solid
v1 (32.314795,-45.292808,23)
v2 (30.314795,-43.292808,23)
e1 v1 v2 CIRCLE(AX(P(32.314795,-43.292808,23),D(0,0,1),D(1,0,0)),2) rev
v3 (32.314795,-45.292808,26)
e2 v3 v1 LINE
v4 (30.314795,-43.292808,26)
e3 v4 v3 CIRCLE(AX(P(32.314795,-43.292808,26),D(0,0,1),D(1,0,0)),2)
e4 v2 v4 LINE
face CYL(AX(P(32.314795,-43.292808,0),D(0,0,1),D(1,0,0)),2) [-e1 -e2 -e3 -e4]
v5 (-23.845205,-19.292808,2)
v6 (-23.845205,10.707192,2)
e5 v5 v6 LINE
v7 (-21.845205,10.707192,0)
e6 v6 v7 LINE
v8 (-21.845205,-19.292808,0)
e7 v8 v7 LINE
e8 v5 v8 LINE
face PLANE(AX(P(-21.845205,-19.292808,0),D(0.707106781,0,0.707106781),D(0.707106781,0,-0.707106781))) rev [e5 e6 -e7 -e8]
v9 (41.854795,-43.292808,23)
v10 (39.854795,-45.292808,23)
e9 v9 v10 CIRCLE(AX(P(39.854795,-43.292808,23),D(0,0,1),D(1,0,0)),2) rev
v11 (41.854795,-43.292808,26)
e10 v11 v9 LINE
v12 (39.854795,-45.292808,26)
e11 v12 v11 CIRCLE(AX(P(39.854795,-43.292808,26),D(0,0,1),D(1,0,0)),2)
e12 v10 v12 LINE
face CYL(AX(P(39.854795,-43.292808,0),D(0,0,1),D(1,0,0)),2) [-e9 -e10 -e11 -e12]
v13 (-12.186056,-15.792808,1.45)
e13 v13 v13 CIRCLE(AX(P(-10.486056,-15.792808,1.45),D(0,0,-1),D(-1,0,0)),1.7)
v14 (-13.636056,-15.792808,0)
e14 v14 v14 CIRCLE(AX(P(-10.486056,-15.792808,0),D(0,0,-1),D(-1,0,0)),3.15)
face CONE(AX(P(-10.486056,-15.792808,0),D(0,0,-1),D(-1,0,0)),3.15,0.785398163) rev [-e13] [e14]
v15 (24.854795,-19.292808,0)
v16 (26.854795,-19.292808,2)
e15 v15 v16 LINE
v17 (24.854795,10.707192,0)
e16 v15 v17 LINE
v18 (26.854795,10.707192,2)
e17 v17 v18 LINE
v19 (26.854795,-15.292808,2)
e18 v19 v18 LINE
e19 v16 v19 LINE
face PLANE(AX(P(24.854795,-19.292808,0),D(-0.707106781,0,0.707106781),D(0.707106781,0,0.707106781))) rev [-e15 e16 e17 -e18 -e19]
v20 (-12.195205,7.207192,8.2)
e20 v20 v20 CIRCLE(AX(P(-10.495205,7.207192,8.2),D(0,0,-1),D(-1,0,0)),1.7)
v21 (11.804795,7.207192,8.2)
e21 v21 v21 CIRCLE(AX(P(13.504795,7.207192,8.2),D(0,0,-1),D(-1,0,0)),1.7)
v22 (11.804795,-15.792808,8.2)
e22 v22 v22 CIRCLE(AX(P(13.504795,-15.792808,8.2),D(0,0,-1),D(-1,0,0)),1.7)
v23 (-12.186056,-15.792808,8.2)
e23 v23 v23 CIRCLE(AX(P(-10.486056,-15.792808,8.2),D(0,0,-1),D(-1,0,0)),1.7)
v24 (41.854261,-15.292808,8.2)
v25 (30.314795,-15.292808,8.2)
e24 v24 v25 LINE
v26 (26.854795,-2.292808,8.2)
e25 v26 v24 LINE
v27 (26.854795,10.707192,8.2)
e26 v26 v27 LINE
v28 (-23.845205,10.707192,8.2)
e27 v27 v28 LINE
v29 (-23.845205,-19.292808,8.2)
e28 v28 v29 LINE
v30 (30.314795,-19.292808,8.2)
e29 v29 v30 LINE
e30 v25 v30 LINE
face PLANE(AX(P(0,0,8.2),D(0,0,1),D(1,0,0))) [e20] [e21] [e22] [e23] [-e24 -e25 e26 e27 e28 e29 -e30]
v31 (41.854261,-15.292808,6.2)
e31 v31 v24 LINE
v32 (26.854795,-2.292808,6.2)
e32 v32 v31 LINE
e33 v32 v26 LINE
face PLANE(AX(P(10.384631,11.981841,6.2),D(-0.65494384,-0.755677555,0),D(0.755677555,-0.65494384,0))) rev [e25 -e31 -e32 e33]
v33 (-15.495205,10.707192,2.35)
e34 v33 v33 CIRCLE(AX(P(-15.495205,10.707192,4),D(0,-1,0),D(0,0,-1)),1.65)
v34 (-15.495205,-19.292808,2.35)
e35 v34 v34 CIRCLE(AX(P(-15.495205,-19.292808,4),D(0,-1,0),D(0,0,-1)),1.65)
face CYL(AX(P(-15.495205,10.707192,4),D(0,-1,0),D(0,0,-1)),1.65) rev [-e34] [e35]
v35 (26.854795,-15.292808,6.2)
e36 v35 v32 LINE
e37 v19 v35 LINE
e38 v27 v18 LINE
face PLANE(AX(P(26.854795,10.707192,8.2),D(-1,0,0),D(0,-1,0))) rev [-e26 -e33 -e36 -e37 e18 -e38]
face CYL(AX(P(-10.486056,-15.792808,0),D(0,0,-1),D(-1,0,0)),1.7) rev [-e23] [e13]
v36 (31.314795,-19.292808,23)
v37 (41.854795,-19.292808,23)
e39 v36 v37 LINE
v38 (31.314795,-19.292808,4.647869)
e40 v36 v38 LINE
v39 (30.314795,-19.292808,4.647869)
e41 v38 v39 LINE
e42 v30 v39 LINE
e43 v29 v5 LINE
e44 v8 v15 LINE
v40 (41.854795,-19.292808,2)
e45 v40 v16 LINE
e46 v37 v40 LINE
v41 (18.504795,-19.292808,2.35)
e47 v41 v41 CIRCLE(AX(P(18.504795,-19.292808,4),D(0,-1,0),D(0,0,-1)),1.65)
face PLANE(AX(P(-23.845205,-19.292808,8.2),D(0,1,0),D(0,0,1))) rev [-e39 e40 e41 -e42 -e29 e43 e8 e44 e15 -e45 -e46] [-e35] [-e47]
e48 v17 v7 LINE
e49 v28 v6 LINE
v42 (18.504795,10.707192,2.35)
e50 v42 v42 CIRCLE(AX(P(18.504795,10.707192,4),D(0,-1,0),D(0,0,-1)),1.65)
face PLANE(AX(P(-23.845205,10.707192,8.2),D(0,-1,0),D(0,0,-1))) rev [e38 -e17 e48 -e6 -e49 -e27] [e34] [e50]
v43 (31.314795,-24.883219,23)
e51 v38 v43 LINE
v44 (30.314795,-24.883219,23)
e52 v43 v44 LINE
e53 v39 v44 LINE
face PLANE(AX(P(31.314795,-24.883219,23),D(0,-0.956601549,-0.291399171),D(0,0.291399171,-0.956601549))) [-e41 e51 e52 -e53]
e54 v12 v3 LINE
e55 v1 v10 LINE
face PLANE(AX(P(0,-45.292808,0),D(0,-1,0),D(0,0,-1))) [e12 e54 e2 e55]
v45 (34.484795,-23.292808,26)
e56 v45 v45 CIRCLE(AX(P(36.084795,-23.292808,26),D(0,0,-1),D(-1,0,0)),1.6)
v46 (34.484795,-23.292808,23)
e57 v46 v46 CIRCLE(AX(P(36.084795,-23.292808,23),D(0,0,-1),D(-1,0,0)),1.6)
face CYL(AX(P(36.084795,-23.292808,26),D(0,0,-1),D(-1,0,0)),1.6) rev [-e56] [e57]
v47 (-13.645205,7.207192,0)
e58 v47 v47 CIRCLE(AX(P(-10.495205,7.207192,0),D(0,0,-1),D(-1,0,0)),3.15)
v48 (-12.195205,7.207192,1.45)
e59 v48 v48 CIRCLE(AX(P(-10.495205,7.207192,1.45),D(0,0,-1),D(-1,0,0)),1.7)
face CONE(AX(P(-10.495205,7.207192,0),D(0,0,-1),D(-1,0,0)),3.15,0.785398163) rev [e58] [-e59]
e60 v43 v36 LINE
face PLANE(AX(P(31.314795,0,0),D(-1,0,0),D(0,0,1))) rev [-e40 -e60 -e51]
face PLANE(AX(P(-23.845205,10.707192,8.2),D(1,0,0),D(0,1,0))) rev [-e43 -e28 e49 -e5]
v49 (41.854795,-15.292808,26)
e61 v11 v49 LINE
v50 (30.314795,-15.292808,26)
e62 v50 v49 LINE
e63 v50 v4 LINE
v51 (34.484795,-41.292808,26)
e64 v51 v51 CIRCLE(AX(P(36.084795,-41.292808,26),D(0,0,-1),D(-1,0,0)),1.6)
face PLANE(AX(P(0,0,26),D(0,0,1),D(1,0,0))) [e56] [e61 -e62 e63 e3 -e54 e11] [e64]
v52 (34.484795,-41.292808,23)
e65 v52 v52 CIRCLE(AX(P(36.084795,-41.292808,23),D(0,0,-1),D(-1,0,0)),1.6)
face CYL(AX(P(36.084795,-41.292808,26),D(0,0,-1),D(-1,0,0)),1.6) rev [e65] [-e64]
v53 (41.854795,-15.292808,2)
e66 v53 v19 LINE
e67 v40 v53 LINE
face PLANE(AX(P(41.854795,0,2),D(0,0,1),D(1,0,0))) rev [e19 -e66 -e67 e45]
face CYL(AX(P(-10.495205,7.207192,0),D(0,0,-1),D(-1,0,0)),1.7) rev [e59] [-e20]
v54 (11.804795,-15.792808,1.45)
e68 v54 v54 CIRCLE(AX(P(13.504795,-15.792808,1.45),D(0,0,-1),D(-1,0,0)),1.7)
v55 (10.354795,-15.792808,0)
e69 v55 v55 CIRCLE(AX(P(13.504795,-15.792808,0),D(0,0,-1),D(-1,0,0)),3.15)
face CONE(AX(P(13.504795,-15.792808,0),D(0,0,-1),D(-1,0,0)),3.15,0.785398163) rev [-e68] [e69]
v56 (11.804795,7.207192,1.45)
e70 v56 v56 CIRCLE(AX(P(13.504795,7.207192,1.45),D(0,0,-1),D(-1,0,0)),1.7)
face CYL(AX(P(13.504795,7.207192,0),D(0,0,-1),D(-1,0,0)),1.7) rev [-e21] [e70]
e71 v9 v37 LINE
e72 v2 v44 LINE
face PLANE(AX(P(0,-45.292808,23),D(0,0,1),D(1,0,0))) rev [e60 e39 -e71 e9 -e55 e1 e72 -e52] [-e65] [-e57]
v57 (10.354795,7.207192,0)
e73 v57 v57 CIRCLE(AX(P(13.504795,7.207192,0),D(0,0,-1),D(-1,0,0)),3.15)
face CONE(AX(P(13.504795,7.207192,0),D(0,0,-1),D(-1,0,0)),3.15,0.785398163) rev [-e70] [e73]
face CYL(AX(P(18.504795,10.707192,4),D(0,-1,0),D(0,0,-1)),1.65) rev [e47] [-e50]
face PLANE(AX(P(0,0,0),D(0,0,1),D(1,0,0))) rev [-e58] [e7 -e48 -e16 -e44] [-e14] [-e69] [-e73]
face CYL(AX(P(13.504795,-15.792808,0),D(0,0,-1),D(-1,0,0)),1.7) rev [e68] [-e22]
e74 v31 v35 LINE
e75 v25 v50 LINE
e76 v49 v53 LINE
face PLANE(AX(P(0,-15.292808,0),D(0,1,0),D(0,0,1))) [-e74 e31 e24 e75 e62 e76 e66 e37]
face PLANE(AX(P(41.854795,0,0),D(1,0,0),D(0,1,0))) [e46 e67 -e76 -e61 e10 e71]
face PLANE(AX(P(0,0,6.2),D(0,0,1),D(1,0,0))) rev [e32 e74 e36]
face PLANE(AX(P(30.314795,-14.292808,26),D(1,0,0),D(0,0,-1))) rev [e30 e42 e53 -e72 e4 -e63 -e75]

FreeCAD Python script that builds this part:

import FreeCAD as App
import Part
import Sketcher
from FreeCAD import Vector
Q = App.Units.Quantity


def edges_at(feature, points):
    """Names of the edges that pass closest to the given points."""
    edges = feature.Shape.Edges
    near = lambda p: min(range(len(edges)), key=lambda i: edges[i].distToShape(Part.Vertex(*p))[0])
    return sorted({f"Edge{near(p) + 1}" for p in points})

doc = App.newDocument("Part")
params = doc.addObject("Spreadsheet::Sheet", "Params")
for row, (alias, value) in enumerate([
    ("sketch1_height", "30 mm"),
    ("sketch1_width", "50.7 mm"),
    ("pad1_length", "8.2 mm"),
    ("sketch2_width", "2 mm"),
    ("sketch3_diameter", "3.4 mm"),
    ("hole_diameter", "3.4 mm"),
    ("hole_csink_diameter", "6.3 mm"),
    ("sketch4_diameter", "3.3 mm"),
    ("sketch5_width", "5 mm"),
    ("sketch5_height", "6.2 mm"),
    ("pad2_length", "15 mm"),
    ("sketch6_height", "5 mm"),
    ("sketch6_width", "11.54 mm"),
    ("pad3_length", "17.8 mm"),
    ("sketch7_height", "3 mm"),
    ("sketch7_width", "11.54 mm"),
    ("pad4_length", "26 mm"),
    ("sketch8_diameter", "3.2 mm"),
    ("pad5_length", "1 mm"),
    ("fillet_radius", "2 mm"),
    ("sketch10_width", "15 mm"),
    ("sketch10_height", "24 mm"),
    ("sketch10_height2", "17.8 mm"),
    ("sketch10_width2", "3.46 mm"),
    ("pocket4_length", "1 mm"),
    ("sketch11_height", "13 mm"),
    ("pad6_length", "2 mm"),
], start=1):
    params.set(f"A{row}", alias)
    params.set(f"B{row}", "=" + value)
    params.setAlias(f"B{row}", alias)

body = doc.addObject("PartDesign::Body", "Body")

# Sketch on XY plane
sketch1 = body.newObject("Sketcher::SketchObject", "Sketch")
sketch1.AttachmentSupport = (doc.getObject("XY_Plane"), [""])
sketch1.MapMode = "FlatFace"
sketch1.addGeometry([
    Part.LineSegment(Vector(-24, 11, 0), Vector(-24, -19, 0)),
    Part.LineSegment(Vector(-24, -19, 0), Vector(27, -19, 0)),
    Part.LineSegment(Vector(27, -19, 0), Vector(27, 11, 0)),
    Part.LineSegment(Vector(27, 11, 0), Vector(-24, 11, 0)),
], False)
sketch1.addConstraint([
    Sketcher.Constraint("Coincident", 0, 2, 1, 1),
    Sketcher.Constraint("Coincident", 1, 2, 2, 1),
    Sketcher.Constraint("Coincident", 2, 2, 3, 1),
    Sketcher.Constraint("Coincident", 3, 2, 0, 1),
    Sketcher.Constraint("Vertical", 0),
    Sketcher.Constraint("Horizontal", 1),
    Sketcher.Constraint("Vertical", 2),
    Sketcher.Constraint("Horizontal", 3),
    Sketcher.Constraint("DistanceY", 0, 2, 0, 1, Q("30 mm")),
    Sketcher.Constraint("DistanceX", 1, 1, 1, 2, Q("50.7 mm")),
    Sketcher.Constraint("DistanceY", 0, 2, -1, 1, Q("19.292808 mm")),
    Sketcher.Constraint("DistanceX", 0, 2, -1, 1, Q("23.845205 mm")),
])
sketch1.setExpression("Constraints[8]", "Params.sketch1_height")
sketch1.setExpression("Constraints[9]", "Params.sketch1_width")
pad1 = body.newObject("PartDesign::Pad", "Pad")
pad1.Profile = sketch1
pad1.setExpression("Length", "Params.pad1_length")

# Sketch on XZ plane
sketch2 = body.newObject("Sketcher::SketchObject", "Sketch001")
sketch2.AttachmentSupport = (doc.getObject("XZ_Plane"), [""])
sketch2.MapMode = "FlatFace"
sketch2.AttachmentOffset = App.Placement(Vector(0, 0, -10.707192), App.Rotation())
sketch2.addGeometry([
    Part.LineSegment(Vector(-23.8, 2, 0), Vector(-21.8, 0, 0)),  # 0
    Part.LineSegment(Vector(-21.8, 0, 0), Vector(-23.8, 0, 0)),  # 1
    Part.LineSegment(Vector(-23.8, 0, 0), Vector(-23.8, 2, 0)),  # 2
    Part.LineSegment(Vector(24.9, 0, 0), Vector(26.9, 2, 0)),  # 3
    Part.LineSegment(Vector(26.9, 2, 0), Vector(26.9, 0, 0)),  # 4
    Part.LineSegment(Vector(26.9, 0, 0), Vector(24.9, 0, 0)),  # 5
], False)
sketch2.addConstraint([
    Sketcher.Constraint("Coincident", 0, 2, 1, 1),
    Sketcher.Constraint("Coincident", 1, 2, 2, 1),
    Sketcher.Constraint("Coincident", 2, 2, 0, 1),
    Sketcher.Constraint("Coincident", 3, 2, 4, 1),
    Sketcher.Constraint("Coincident", 4, 2, 5, 1),
    Sketcher.Constraint("Coincident", 5, 2, 3, 1),
    Sketcher.Constraint("Horizontal", 1),
    Sketcher.Constraint("Vertical", 2),
    Sketcher.Constraint("Vertical", 4),
    Sketcher.Constraint("Horizontal", 5),
    Sketcher.Constraint("PointOnObject", 0, 2, -1),
    Sketcher.Constraint("PointOnObject", 4, 2, -1),
    Sketcher.Constraint("Perpendicular", 0, 3),
    Sketcher.Constraint("Horizontal", 2, 2, 3, 2),
    Sketcher.Constraint("Equal", 1, 5),
    Sketcher.Constraint("DistanceX", 1, 2, 1, 1, Q("2 mm")),
    Sketcher.Constraint("DistanceX", 0, 2, 3, 2, Q("48.7 mm")),
    Sketcher.Constraint("DistanceX", 0, 2, -1, 1, Q("21.845205 mm")),
])
sketch2.setExpression("Constraints[15]", "Params.sketch2_width")
pocket1 = body.newObject("PartDesign::Pocket", "Pocket")
pocket1.Profile = sketch2
pocket1.Type = "ThroughAll"
pocket1.Reversed = True

# Sketch on XY plane
sketch3 = body.newObject("Sketcher::SketchObject", "Sketch002")
sketch3.AttachmentSupport = (doc.getObject("XY_Plane"), [""])
sketch3.MapMode = "FlatFace"
sketch3.addGeometry([
    Part.Circle(Vector(-10.5, -15.8, 0), Vector(0, 0, 1), 1.7),
    Part.Circle(Vector(13.5, -15.8, 0), Vector(0, 0, 1), 1.7),
    Part.Circle(Vector(13.5, 7.2, 0), Vector(0, 0, 1), 1.7),
    Part.Circle(Vector(-10.5, 7.2, 0), Vector(0, 0, 1), 1.7),
], False)
sketch3.addConstraint([
    Sketcher.Constraint("Equal", 0, 1),
    Sketcher.Constraint("Equal", 1, 2),
    Sketcher.Constraint("Equal", 2, 3),
    Sketcher.Constraint("Horizontal", 0, 3, 1, 3),
    Sketcher.Constraint("Horizontal", 2, 3, 3, 3),
    Sketcher.Constraint("Vertical", 1, 3, 2, 3),
    Sketcher.Constraint("Diameter", 0, Q("3.4 mm")),
    Sketcher.Constraint("DistanceY", 1, 3, 2, 3, Q("23 mm")),
    Sketcher.Constraint("DistanceX", 3, 3, 2, 3, Q("24 mm")),
    Sketcher.Constraint("DistanceY", 0, 3, -1, 1, Q("15.792808 mm")),
    Sketcher.Constraint("DistanceX", 0, 3, 1, 3, Q("23.99085 mm")),
    Sketcher.Constraint("DistanceX", 0, 3, -1, 1, Q("10.486056 mm")),
])
sketch3.setExpression("Constraints[6]", "Params.sketch3_diameter")
doc.recompute()
hole = body.newObject("PartDesign::Hole", "Hole")
hole.Profile = sketch3
hole.ThreadType = "None"
hole.setExpression("Diameter", "Params.hole_diameter")
hole.DepthType = "ThroughAll"
hole.HoleCutType = "Countersink"
hole.setExpression("HoleCutDiameter", "Params.hole_csink_diameter")
hole.HoleCutCountersinkAngle = 90
hole.Reversed = True

# Sketch on XZ plane
sketch4 = body.newObject("Sketcher::SketchObject", "Sketch003")
sketch4.AttachmentSupport = (doc.getObject("XZ_Plane"), [""])
sketch4.MapMode = "FlatFace"
sketch4.AttachmentOffset = App.Placement(Vector(0, 0, 19.292808), App.Rotation())
sketch4.addGeometry([
    Part.Circle(Vector(-15.5, 4, 0), Vector(0, 0, 1), 1.6),
    Part.Circle(Vector(18.5, 4, 0), Vector(0, 0, 1), 1.6),
], False)
sketch4.addConstraint([
    Sketcher.Constraint("Equal", 0, 1),
    Sketcher.Constraint("Horizontal", 0, 3, 1, 3),
    Sketcher.Constraint("Diameter", 0, Q("3.3 mm")),
    Sketcher.Constraint("DistanceY", -1, 1, 0, 3, Q("4 mm")),
    Sketcher.Constraint("DistanceX", 0, 3, 1, 3, Q("34 mm")),
    Sketcher.Constraint("DistanceX", 0, 3, -1, 1, Q("15.495205 mm")),
])
sketch4.setExpression("Constraints[2]", "Params.sketch4_diameter")
pocket2 = body.newObject("PartDesign::Pocket", "Pocket001")
pocket2.Profile = sketch4
pocket2.Type = "ThroughAll"

# Sketch on YZ plane
sketch5 = body.newObject("Sketcher::SketchObject", "Sketch004")
sketch5.AttachmentSupport = (doc.getObject("YZ_Plane"), [""])
sketch5.MapMode = "FlatFace"
sketch5.AttachmentOffset = App.Placement(Vector(0, 0, 26.854795), App.Rotation())
sketch5.addGeometry([
    Part.LineSegment(Vector(-14, 8, 0), Vector(-19, 8, 0)),
    Part.LineSegment(Vector(-19, 8, 0), Vector(-19, 2, 0)),
    Part.LineSegment(Vector(-19, 2, 0), Vector(-14, 2, 0)),
    Part.LineSegment(Vector(-14, 2, 0), Vector(-14, 8, 0)),
], False)
sketch5.addConstraint([
    Sketcher.Constraint("Coincident", 0, 2, 1, 1),
    Sketcher.Constraint("Coincident", 1, 2, 2, 1),
    Sketcher.Constraint("Coincident", 2, 2, 3, 1),
    Sketcher.Constraint("Coincident", 3, 2, 0, 1),
    Sketcher.Constraint("Horizontal", 0),
    Sketcher.Constraint("Vertical", 1),
    Sketcher.Constraint("Horizontal", 2),
    Sketcher.Constraint("Vertical", 3),
    Sketcher.Constraint("DistanceX", 0, 2, 0, 1, Q("5 mm")),
    Sketcher.Constraint("DistanceY", 1, 2, 1, 1, Q("6.2 mm")),
    Sketcher.Constraint("DistanceY", -1, 1, 1, 2, Q("2 mm")),
    Sketcher.Constraint("DistanceX", 0, 2, -1, 1, Q("19.292808 mm")),
])
sketch5.setExpression("Constraints[8]", "Params.sketch5_width")
sketch5.setExpression("Constraints[9]", "Params.sketch5_height")
pad2 = body.newObject("PartDesign::Pad", "Pad001")
pad2.Profile = sketch5
pad2.setExpression("Length", "Params.pad2_length")

# Sketch on XY plane
sketch6 = body.newObject("Sketcher::SketchObject", "Sketch005")
sketch6.AttachmentSupport = (doc.getObject("XY_Plane"), [""])
sketch6.MapMode = "FlatFace"
sketch6.AttachmentOffset = App.Placement(Vector(0, 0, 8.2), App.Rotation())
sketch6.addGeometry([
    Part.LineSegment(Vector(30, -14, 0), Vector(30, -19, 0)),
    Part.LineSegment(Vector(30, -19, 0), Vector(42, -19, 0)),
    Part.LineSegment(Vector(42, -19, 0), Vector(42, -14, 0)),
    Part.LineSegment(Vector(42, -14, 0), Vector(30, -14, 0)),
], False)
sketch6.addConstraint([
    Sketcher.Constraint("Coincident", 0, 2, 1, 1),
    Sketcher.Constraint("Coincident", 1, 2, 2, 1),
    Sketcher.Constraint("Coincident", 2, 2, 3, 1),
    Sketcher.Constraint("Coincident", 3, 2, 0, 1),
    Sketcher.Constraint("Vertical", 0),
    Sketcher.Constraint("Horizontal", 1),
    Sketcher.Constraint("Vertical", 2),
    Sketcher.Constraint("Horizontal", 3),
    Sketcher.Constraint("DistanceY", 0, 2, 0, 1, Q("5 mm")),
    Sketcher.Constraint("DistanceX", 1, 1, 1, 2, Q("11.54 mm")),
    Sketcher.Constraint("DistanceY", 0, 2, -1, 1, Q("19.292808 mm")),
    Sketcher.Constraint("DistanceX", -1, 1, 0, 2, Q("30.314795 mm")),
])
sketch6.setExpression("Constraints[8]", "Params.sketch6_height")
sketch6.setExpression("Constraints[9]", "Params.sketch6_width")
pad3 = body.newObject("PartDesign::Pad", "Pad002")
pad3.Profile = sketch6
pad3.setExpression("Length", "Params.pad3_length")

# Sketch on XZ plane
sketch7 = body.newObject("Sketcher::SketchObject", "Sketch006")
sketch7.AttachmentSupport = (doc.getObject("XZ_Plane"), [""])
sketch7.MapMode = "FlatFace"
sketch7.AttachmentOffset = App.Placement(Vector(0, 0, 19.292808), App.Rotation())
sketch7.addGeometry([
    Part.LineSegment(Vector(30.3, 26, 0), Vector(30.3, 23, 0)),
    Part.LineSegment(Vector(30.3, 23, 0), Vector(41.9, 23, 0)),
    Part.LineSegment(Vector(41.9, 23, 0), Vector(41.9, 26, 0)),
    Part.LineSegment(Vector(41.9, 26, 0), Vector(30.3, 26, 0)),
], False)
sketch7.addConstraint([
    Sketcher.Constraint("Coincident", 0, 2, 1, 1),
    Sketcher.Constraint("Coincident", 1, 2, 2, 1),
    Sketcher.Constraint("Coincident", 2, 2, 3, 1),
    Sketcher.Constraint("Coincident", 3, 2, 0, 1),
    Sketcher.Constraint("Vertical", 0),
    Sketcher.Constraint("Horizontal", 1),
    Sketcher.Constraint("Vertical", 2),
    Sketcher.Constraint("Horizontal", 3),
    Sketcher.Constraint("DistanceY", 0, 2, 0, 1, Q("3 mm")),
    Sketcher.Constraint("DistanceY", -1, 1, 0, 2, Q("23 mm")),
    Sketcher.Constraint("DistanceX", 1, 1, 1, 2, Q("11.54 mm")),
    Sketcher.Constraint("DistanceX", -1, 1, 0, 2, Q("30.314795 mm")),
])
sketch7.setExpression("Constraints[8]", "Params.sketch7_height")
sketch7.setExpression("Constraints[10]", "Params.sketch7_width")
pad4 = body.newObject("PartDesign::Pad", "Pad003")
pad4.Profile = sketch7
pad4.setExpression("Length", "Params.pad4_length")

# Sketch on XY plane
sketch8 = body.newObject("Sketcher::SketchObject", "Sketch007")
sketch8.AttachmentSupport = (doc.getObject("XY_Plane"), [""])
sketch8.MapMode = "FlatFace"
sketch8.AttachmentOffset = App.Placement(Vector(0, 0, 23), App.Rotation())
sketch8.addGeometry([
    Part.Circle(Vector(36.1, -41.3, 0), Vector(0, 0, 1), 1.6),
    Part.Circle(Vector(36.1, -23.3, 0), Vector(0, 0, 1), 1.6),
], False)
sketch8.addConstraint([
    Sketcher.Constraint("Equal", 0, 1),
    Sketcher.Constraint("Vertical", 0, 3, 1, 3),
    Sketcher.Constraint("Diameter", 0, Q("3.2 mm")),
    Sketcher.Constraint("DistanceY", 0, 3, 1, 3, Q("18 mm")),
    Sketcher.Constraint("DistanceY", 0, 3, -1, 1, Q("41.292808 mm")),
    Sketcher.Constraint("DistanceX", -1, 1, 0, 3, Q("36.084795 mm")),
])
sketch8.setExpression("Constraints[2]", "Params.sketch8_diameter")
pocket3 = body.newObject("PartDesign::Pocket", "Pocket002")
pocket3.Profile = sketch8
pocket3.Type = "ThroughAll"
pocket3.Reversed = True

# Sketch on YZ plane
sketch9 = body.newObject("Sketcher::SketchObject", "Sketch008")
sketch9.AttachmentSupport = (doc.getObject("YZ_Plane"), [""])
sketch9.MapMode = "FlatFace"
sketch9.AttachmentOffset = App.Placement(Vector(0, 0, 30.314795), App.Rotation())
sketch9.addGeometry([
    Part.LineSegment(Vector(-19, 5, 0), Vector(-25, 23, 0)),
    Part.LineSegment(Vector(-25, 23, 0), Vector(-19, 23, 0)),
    Part.LineSegment(Vector(-19, 23, 0), Vector(-19, 5, 0)),
], False)
sketch9.addConstraint([
    Sketcher.Constraint("Coincident", 0, 2, 1, 1),
    Sketcher.Constraint("Coincident", 1, 2, 2, 1),
    Sketcher.Constraint("Coincident", 2, 2, 0, 1),
    Sketcher.Constraint("Horizontal", 1),
    Sketcher.Constraint("Vertical", 2),
    Sketcher.Constraint("DistanceY", -1, 1, 0, 2, Q("23 mm")),
    Sketcher.Constraint("DistanceX", 1, 1, 1, 2, Q("5.590411 mm")),
    Sketcher.Constraint("DistanceY", 2, 2, 2, 1, Q("18.352131 mm")),
    Sketcher.Constraint("DistanceX", 0, 2, -1, 1, Q("24.883219 mm")),
])
pad5 = body.newObject("PartDesign::Pad", "Pad004")
pad5.Profile = sketch9
pad5.setExpression("Length", "Params.pad5_length")
doc.recompute()

fillet = body.newObject("PartDesign::Fillet", "Fillet")
fillet.Base = (pad5, edges_at(pad5, [(30.315, -45.293, 24.5), (41.855, -45.293, 24.5)]))
fillet.setExpression("Radius", "Params.fillet_radius")

# Sketch on XZ plane
sketch10 = body.newObject("Sketcher::SketchObject", "Sketch009")
sketch10.AttachmentSupport = (doc.getObject("XZ_Plane"), [""])
sketch10.MapMode = "FlatFace"
sketch10.AttachmentOffset = App.Placement(Vector(0, 0, 14.292808), App.Rotation())
sketch10.addGeometry([
    Part.LineSegment(Vector(26.9, 8.2, 0), Vector(30.3, 8.2, 0)),  # 0
    Part.LineSegment(Vector(30.3, 8.2, 0), Vector(30.3, 26, 0)),  # 1
    Part.LineSegment(Vector(30.3, 26, 0), Vector(41.9, 26, 0)),  # 2
    Part.LineSegment(Vector(41.9, 26, 0), Vector(41.9, 2, 0)),  # 3
    Part.LineSegment(Vector(41.9, 2, 0), Vector(26.9, 2, 0)),  # 4
    Part.LineSegment(Vector(26.9, 2, 0), Vector(26.9, 8.2, 0)),  # 5
], False)
sketch10.addConstraint([
    Sketcher.Constraint("Coincident", 0, 2, 1, 1),
    Sketcher.Constraint("Coincident", 1, 2, 2, 1),
    Sketcher.Constraint("Coincident", 2, 2, 3, 1),
    Sketcher.Constraint("Coincident", 3, 2, 4, 1),
    Sketcher.Constraint("Coincident", 4, 2, 5, 1),
    Sketcher.Constraint("Coincident", 5, 2, 0, 1),
    Sketcher.Constraint("Horizontal", 0),
    Sketcher.Constraint("Vertical", 1),
    Sketcher.Constraint("Horizontal", 2),
    Sketcher.Constraint("Vertical", 3),
    Sketcher.Constraint("Horizontal", 4),
    Sketcher.Constraint("Vertical", 5),
    Sketcher.Constraint("DistanceX", 4, 2, 4, 1, Q("15 mm")),
    Sketcher.Constraint("DistanceY", 3, 2, 3, 1, Q("24 mm")),
    Sketcher.Constraint("DistanceY", 1, 1, 1, 2, Q("17.8 mm")),
    Sketcher.Constraint("DistanceY", -1, 1, 1, 2, Q("26 mm")),
    Sketcher.Constraint("DistanceX", 0, 1, 0, 2, Q("3.46 mm")),
    Sketcher.Constraint("DistanceX", -1, 1, 0, 2, Q("30.314795 mm")),
])
sketch10.setExpression("Constraints[12]", "Params.sketch10_width")
sketch10.setExpression("Constraints[13]", "Params.sketch10_height")
sketch10.setExpression("Constraints[14]", "Params.sketch10_height2")
sketch10.setExpression("Constraints[16]", "Params.sketch10_width2")
pocket4 = body.newObject("PartDesign::Pocket", "Pocket003")
pocket4.Profile = sketch10
pocket4.setExpression("Length", "Params.pocket4_length")
pocket4.Reversed = True

# Sketch on XY plane
sketch11 = body.newObject("Sketcher::SketchObject", "Sketch010")
sketch11.AttachmentSupport = (doc.getObject("XY_Plane"), [""])
sketch11.MapMode = "FlatFace"
sketch11.AttachmentOffset = App.Placement(Vector(0, 0, 8.2), App.Rotation())
sketch11.addGeometry([
    Part.LineSegment(Vector(27, -15, 0), Vector(42, -15, 0)),
    Part.LineSegment(Vector(42, -15, 0), Vector(27, -2, 0)),
    Part.LineSegment(Vector(27, -2, 0), Vector(27, -15, 0)),
], False)
sketch11.addConstraint([
    Sketcher.Constraint("Coincident", 0, 2, 1, 1),
    Sketcher.Constraint("Coincident", 1, 2, 2, 1),
    Sketcher.Constraint("Coincident", 2, 2, 0, 1),
    Sketcher.Constraint("Horizontal", 0),
    Sketcher.Constraint("Vertical", 2),
    Sketcher.Constraint("DistanceY", 2, 2, 2, 1, Q("13 mm")),
    Sketcher.Constraint("Distance", 1, Q("19.84903 mm")),
    Sketcher.Constraint("DistanceX", -1, 1, 0, 2, Q("41.854261 mm")),
    Sketcher.Constraint("DistanceY", 0, 2, -1, 1, Q("15.292808 mm")),
])
sketch11.setExpression("Constraints[5]", "Params.sketch11_height")
pad6 = body.newObject("PartDesign::Pad", "Pad005")
pad6.Profile = sketch11
pad6.setExpression("Length", "Params.pad6_length")
pad6.Reversed = True

doc.recompute()
